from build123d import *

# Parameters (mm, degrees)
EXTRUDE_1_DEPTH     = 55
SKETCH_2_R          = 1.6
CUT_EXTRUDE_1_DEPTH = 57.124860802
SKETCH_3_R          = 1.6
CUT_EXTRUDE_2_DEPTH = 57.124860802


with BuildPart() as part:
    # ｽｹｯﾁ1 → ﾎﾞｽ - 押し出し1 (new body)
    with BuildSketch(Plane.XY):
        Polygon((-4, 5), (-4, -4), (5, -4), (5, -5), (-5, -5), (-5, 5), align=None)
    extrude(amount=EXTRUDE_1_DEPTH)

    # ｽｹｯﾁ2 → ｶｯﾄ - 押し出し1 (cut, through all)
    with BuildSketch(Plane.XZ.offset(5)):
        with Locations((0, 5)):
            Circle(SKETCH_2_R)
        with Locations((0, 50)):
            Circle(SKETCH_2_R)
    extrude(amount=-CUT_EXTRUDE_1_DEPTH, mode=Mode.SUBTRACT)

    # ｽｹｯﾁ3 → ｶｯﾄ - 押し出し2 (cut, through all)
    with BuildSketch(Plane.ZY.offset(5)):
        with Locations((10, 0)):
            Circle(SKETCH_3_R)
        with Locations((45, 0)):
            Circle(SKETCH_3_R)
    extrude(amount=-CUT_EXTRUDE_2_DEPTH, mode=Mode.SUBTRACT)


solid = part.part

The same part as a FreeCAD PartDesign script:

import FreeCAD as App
import Part
import Sketcher
from FreeCAD import Vector


def add_polygon(sketch, points):
    """Adds a closed chain of lines whose ends are joined by coincident constraints."""
    first, n = sketch.GeometryCount, len(points)
    for a, b in zip(points, points[1:] + points[:1]):
        sketch.addGeometry(Part.LineSegment(App.Vector(*a, 0), App.Vector(*b, 0)), False)
    for i in range(n):
        sketch.addConstraint(Sketcher.Constraint("Coincident", first + i, 2, first + (i + 1) % n, 1))

doc = App.newDocument("Part")
body = doc.addObject("PartDesign::Body", "Body")

# Sketch on XY plane
sketch1 = body.newObject("Sketcher::SketchObject", "Sketch")
sketch1.AttachmentSupport = (doc.getObject("XY_Plane"), [""])
sketch1.MapMode = "FlatFace"
add_polygon(sketch1, [(-4, -4), (-4, 5), (-5, 5), (-5, -5), (5, -5), (5, -4)])  # lines 0-5
sketch1.addConstraint([
    Sketcher.Constraint("Vertical", 0),
    Sketcher.Constraint("Horizontal", 1),
    Sketcher.Constraint("Vertical", 2),
    Sketcher.Constraint("Horizontal", 3),
    Sketcher.Constraint("Vertical", 4),
    Sketcher.Constraint("Horizontal", 5),
    Sketcher.Constraint("Symmetric", 1, 2, 3, 2, -1, 1),
    Sketcher.Constraint("Equal", 5, 0),
    Sketcher.Constraint("Equal", 3, 2),
    Sketcher.Constraint("DistanceX", 1, 2, 1, 1, 1.0),
    Sketcher.Constraint("DistanceX", 3, 1, 3, 2, 10.0),
])
pad1 = body.newObject("PartDesign::Pad", "Pad")
pad1.Profile = sketch1
pad1.Length = 55

# Sketch on XZ plane
sketch2 = body.newObject("Sketcher::SketchObject", "Sketch001")
sketch2.AttachmentSupport = (doc.getObject("XZ_Plane"), [""])
sketch2.MapMode = "FlatFace"
sketch2.AttachmentOffset = App.Placement(Vector(0, 0, 5), App.Rotation())
sketch2.addGeometry([
    Part.Circle(Vector(0, 5, 0), Vector(0, 0, 1), 1.6),
    Part.Circle(Vector(0, 50, 0), Vector(0, 0, 1), 1.6),
], False)
sketch2.addConstraint([
    Sketcher.Constraint("Equal", 0, 1),
    Sketcher.Constraint("PointOnObject", 0, 3, -2),
    Sketcher.Constraint("PointOnObject", 1, 3, -2),
    Sketcher.Constraint("Diameter", 0, 3.2),
    Sketcher.Constraint("DistanceY", -1, 1, 0, 3, 5.0),
    Sketcher.Constraint("DistanceY", -1, 1, 1, 3, 50.0),
])
pocket1 = body.newObject("PartDesign::Pocket", "Pocket")
pocket1.Profile = sketch2
pocket1.Type = "ThroughAll"

# Sketch on YZ plane
sketch3 = body.newObject("Sketcher::SketchObject", "Sketch002")
sketch3.AttachmentSupport = (doc.getObject("YZ_Plane"), [""])
sketch3.MapMode = "FlatFace"
sketch3.AttachmentOffset = App.Placement(Vector(0, 0, -5), App.Rotation())
sketch3.addGeometry([
    Part.Circle(Vector(0, 10, 0), Vector(0, 0, 1), 1.6),
    Part.Circle(Vector(0, 45, 0), Vector(0, 0, 1), 1.6),
], False)
sketch3.addConstraint([
    Sketcher.Constraint("Equal", 0, 1),
    Sketcher.Constraint("PointOnObject", 0, 3, -2),
    Sketcher.Constraint("PointOnObject", 1, 3, -2),
    Sketcher.Constraint("Diameter", 0, 3.2),
    Sketcher.Constraint("DistanceY", -1, 1, 0, 3, 10.0),
    Sketcher.Constraint("DistanceY", -1, 1, 1, 3, 45.0),
])
pocket2 = body.newObject("PartDesign::Pocket", "Pocket001")
pocket2.Profile = sketch3
pocket2.Type = "ThroughAll"
pocket2.Reversed = True

doc.recompute()
